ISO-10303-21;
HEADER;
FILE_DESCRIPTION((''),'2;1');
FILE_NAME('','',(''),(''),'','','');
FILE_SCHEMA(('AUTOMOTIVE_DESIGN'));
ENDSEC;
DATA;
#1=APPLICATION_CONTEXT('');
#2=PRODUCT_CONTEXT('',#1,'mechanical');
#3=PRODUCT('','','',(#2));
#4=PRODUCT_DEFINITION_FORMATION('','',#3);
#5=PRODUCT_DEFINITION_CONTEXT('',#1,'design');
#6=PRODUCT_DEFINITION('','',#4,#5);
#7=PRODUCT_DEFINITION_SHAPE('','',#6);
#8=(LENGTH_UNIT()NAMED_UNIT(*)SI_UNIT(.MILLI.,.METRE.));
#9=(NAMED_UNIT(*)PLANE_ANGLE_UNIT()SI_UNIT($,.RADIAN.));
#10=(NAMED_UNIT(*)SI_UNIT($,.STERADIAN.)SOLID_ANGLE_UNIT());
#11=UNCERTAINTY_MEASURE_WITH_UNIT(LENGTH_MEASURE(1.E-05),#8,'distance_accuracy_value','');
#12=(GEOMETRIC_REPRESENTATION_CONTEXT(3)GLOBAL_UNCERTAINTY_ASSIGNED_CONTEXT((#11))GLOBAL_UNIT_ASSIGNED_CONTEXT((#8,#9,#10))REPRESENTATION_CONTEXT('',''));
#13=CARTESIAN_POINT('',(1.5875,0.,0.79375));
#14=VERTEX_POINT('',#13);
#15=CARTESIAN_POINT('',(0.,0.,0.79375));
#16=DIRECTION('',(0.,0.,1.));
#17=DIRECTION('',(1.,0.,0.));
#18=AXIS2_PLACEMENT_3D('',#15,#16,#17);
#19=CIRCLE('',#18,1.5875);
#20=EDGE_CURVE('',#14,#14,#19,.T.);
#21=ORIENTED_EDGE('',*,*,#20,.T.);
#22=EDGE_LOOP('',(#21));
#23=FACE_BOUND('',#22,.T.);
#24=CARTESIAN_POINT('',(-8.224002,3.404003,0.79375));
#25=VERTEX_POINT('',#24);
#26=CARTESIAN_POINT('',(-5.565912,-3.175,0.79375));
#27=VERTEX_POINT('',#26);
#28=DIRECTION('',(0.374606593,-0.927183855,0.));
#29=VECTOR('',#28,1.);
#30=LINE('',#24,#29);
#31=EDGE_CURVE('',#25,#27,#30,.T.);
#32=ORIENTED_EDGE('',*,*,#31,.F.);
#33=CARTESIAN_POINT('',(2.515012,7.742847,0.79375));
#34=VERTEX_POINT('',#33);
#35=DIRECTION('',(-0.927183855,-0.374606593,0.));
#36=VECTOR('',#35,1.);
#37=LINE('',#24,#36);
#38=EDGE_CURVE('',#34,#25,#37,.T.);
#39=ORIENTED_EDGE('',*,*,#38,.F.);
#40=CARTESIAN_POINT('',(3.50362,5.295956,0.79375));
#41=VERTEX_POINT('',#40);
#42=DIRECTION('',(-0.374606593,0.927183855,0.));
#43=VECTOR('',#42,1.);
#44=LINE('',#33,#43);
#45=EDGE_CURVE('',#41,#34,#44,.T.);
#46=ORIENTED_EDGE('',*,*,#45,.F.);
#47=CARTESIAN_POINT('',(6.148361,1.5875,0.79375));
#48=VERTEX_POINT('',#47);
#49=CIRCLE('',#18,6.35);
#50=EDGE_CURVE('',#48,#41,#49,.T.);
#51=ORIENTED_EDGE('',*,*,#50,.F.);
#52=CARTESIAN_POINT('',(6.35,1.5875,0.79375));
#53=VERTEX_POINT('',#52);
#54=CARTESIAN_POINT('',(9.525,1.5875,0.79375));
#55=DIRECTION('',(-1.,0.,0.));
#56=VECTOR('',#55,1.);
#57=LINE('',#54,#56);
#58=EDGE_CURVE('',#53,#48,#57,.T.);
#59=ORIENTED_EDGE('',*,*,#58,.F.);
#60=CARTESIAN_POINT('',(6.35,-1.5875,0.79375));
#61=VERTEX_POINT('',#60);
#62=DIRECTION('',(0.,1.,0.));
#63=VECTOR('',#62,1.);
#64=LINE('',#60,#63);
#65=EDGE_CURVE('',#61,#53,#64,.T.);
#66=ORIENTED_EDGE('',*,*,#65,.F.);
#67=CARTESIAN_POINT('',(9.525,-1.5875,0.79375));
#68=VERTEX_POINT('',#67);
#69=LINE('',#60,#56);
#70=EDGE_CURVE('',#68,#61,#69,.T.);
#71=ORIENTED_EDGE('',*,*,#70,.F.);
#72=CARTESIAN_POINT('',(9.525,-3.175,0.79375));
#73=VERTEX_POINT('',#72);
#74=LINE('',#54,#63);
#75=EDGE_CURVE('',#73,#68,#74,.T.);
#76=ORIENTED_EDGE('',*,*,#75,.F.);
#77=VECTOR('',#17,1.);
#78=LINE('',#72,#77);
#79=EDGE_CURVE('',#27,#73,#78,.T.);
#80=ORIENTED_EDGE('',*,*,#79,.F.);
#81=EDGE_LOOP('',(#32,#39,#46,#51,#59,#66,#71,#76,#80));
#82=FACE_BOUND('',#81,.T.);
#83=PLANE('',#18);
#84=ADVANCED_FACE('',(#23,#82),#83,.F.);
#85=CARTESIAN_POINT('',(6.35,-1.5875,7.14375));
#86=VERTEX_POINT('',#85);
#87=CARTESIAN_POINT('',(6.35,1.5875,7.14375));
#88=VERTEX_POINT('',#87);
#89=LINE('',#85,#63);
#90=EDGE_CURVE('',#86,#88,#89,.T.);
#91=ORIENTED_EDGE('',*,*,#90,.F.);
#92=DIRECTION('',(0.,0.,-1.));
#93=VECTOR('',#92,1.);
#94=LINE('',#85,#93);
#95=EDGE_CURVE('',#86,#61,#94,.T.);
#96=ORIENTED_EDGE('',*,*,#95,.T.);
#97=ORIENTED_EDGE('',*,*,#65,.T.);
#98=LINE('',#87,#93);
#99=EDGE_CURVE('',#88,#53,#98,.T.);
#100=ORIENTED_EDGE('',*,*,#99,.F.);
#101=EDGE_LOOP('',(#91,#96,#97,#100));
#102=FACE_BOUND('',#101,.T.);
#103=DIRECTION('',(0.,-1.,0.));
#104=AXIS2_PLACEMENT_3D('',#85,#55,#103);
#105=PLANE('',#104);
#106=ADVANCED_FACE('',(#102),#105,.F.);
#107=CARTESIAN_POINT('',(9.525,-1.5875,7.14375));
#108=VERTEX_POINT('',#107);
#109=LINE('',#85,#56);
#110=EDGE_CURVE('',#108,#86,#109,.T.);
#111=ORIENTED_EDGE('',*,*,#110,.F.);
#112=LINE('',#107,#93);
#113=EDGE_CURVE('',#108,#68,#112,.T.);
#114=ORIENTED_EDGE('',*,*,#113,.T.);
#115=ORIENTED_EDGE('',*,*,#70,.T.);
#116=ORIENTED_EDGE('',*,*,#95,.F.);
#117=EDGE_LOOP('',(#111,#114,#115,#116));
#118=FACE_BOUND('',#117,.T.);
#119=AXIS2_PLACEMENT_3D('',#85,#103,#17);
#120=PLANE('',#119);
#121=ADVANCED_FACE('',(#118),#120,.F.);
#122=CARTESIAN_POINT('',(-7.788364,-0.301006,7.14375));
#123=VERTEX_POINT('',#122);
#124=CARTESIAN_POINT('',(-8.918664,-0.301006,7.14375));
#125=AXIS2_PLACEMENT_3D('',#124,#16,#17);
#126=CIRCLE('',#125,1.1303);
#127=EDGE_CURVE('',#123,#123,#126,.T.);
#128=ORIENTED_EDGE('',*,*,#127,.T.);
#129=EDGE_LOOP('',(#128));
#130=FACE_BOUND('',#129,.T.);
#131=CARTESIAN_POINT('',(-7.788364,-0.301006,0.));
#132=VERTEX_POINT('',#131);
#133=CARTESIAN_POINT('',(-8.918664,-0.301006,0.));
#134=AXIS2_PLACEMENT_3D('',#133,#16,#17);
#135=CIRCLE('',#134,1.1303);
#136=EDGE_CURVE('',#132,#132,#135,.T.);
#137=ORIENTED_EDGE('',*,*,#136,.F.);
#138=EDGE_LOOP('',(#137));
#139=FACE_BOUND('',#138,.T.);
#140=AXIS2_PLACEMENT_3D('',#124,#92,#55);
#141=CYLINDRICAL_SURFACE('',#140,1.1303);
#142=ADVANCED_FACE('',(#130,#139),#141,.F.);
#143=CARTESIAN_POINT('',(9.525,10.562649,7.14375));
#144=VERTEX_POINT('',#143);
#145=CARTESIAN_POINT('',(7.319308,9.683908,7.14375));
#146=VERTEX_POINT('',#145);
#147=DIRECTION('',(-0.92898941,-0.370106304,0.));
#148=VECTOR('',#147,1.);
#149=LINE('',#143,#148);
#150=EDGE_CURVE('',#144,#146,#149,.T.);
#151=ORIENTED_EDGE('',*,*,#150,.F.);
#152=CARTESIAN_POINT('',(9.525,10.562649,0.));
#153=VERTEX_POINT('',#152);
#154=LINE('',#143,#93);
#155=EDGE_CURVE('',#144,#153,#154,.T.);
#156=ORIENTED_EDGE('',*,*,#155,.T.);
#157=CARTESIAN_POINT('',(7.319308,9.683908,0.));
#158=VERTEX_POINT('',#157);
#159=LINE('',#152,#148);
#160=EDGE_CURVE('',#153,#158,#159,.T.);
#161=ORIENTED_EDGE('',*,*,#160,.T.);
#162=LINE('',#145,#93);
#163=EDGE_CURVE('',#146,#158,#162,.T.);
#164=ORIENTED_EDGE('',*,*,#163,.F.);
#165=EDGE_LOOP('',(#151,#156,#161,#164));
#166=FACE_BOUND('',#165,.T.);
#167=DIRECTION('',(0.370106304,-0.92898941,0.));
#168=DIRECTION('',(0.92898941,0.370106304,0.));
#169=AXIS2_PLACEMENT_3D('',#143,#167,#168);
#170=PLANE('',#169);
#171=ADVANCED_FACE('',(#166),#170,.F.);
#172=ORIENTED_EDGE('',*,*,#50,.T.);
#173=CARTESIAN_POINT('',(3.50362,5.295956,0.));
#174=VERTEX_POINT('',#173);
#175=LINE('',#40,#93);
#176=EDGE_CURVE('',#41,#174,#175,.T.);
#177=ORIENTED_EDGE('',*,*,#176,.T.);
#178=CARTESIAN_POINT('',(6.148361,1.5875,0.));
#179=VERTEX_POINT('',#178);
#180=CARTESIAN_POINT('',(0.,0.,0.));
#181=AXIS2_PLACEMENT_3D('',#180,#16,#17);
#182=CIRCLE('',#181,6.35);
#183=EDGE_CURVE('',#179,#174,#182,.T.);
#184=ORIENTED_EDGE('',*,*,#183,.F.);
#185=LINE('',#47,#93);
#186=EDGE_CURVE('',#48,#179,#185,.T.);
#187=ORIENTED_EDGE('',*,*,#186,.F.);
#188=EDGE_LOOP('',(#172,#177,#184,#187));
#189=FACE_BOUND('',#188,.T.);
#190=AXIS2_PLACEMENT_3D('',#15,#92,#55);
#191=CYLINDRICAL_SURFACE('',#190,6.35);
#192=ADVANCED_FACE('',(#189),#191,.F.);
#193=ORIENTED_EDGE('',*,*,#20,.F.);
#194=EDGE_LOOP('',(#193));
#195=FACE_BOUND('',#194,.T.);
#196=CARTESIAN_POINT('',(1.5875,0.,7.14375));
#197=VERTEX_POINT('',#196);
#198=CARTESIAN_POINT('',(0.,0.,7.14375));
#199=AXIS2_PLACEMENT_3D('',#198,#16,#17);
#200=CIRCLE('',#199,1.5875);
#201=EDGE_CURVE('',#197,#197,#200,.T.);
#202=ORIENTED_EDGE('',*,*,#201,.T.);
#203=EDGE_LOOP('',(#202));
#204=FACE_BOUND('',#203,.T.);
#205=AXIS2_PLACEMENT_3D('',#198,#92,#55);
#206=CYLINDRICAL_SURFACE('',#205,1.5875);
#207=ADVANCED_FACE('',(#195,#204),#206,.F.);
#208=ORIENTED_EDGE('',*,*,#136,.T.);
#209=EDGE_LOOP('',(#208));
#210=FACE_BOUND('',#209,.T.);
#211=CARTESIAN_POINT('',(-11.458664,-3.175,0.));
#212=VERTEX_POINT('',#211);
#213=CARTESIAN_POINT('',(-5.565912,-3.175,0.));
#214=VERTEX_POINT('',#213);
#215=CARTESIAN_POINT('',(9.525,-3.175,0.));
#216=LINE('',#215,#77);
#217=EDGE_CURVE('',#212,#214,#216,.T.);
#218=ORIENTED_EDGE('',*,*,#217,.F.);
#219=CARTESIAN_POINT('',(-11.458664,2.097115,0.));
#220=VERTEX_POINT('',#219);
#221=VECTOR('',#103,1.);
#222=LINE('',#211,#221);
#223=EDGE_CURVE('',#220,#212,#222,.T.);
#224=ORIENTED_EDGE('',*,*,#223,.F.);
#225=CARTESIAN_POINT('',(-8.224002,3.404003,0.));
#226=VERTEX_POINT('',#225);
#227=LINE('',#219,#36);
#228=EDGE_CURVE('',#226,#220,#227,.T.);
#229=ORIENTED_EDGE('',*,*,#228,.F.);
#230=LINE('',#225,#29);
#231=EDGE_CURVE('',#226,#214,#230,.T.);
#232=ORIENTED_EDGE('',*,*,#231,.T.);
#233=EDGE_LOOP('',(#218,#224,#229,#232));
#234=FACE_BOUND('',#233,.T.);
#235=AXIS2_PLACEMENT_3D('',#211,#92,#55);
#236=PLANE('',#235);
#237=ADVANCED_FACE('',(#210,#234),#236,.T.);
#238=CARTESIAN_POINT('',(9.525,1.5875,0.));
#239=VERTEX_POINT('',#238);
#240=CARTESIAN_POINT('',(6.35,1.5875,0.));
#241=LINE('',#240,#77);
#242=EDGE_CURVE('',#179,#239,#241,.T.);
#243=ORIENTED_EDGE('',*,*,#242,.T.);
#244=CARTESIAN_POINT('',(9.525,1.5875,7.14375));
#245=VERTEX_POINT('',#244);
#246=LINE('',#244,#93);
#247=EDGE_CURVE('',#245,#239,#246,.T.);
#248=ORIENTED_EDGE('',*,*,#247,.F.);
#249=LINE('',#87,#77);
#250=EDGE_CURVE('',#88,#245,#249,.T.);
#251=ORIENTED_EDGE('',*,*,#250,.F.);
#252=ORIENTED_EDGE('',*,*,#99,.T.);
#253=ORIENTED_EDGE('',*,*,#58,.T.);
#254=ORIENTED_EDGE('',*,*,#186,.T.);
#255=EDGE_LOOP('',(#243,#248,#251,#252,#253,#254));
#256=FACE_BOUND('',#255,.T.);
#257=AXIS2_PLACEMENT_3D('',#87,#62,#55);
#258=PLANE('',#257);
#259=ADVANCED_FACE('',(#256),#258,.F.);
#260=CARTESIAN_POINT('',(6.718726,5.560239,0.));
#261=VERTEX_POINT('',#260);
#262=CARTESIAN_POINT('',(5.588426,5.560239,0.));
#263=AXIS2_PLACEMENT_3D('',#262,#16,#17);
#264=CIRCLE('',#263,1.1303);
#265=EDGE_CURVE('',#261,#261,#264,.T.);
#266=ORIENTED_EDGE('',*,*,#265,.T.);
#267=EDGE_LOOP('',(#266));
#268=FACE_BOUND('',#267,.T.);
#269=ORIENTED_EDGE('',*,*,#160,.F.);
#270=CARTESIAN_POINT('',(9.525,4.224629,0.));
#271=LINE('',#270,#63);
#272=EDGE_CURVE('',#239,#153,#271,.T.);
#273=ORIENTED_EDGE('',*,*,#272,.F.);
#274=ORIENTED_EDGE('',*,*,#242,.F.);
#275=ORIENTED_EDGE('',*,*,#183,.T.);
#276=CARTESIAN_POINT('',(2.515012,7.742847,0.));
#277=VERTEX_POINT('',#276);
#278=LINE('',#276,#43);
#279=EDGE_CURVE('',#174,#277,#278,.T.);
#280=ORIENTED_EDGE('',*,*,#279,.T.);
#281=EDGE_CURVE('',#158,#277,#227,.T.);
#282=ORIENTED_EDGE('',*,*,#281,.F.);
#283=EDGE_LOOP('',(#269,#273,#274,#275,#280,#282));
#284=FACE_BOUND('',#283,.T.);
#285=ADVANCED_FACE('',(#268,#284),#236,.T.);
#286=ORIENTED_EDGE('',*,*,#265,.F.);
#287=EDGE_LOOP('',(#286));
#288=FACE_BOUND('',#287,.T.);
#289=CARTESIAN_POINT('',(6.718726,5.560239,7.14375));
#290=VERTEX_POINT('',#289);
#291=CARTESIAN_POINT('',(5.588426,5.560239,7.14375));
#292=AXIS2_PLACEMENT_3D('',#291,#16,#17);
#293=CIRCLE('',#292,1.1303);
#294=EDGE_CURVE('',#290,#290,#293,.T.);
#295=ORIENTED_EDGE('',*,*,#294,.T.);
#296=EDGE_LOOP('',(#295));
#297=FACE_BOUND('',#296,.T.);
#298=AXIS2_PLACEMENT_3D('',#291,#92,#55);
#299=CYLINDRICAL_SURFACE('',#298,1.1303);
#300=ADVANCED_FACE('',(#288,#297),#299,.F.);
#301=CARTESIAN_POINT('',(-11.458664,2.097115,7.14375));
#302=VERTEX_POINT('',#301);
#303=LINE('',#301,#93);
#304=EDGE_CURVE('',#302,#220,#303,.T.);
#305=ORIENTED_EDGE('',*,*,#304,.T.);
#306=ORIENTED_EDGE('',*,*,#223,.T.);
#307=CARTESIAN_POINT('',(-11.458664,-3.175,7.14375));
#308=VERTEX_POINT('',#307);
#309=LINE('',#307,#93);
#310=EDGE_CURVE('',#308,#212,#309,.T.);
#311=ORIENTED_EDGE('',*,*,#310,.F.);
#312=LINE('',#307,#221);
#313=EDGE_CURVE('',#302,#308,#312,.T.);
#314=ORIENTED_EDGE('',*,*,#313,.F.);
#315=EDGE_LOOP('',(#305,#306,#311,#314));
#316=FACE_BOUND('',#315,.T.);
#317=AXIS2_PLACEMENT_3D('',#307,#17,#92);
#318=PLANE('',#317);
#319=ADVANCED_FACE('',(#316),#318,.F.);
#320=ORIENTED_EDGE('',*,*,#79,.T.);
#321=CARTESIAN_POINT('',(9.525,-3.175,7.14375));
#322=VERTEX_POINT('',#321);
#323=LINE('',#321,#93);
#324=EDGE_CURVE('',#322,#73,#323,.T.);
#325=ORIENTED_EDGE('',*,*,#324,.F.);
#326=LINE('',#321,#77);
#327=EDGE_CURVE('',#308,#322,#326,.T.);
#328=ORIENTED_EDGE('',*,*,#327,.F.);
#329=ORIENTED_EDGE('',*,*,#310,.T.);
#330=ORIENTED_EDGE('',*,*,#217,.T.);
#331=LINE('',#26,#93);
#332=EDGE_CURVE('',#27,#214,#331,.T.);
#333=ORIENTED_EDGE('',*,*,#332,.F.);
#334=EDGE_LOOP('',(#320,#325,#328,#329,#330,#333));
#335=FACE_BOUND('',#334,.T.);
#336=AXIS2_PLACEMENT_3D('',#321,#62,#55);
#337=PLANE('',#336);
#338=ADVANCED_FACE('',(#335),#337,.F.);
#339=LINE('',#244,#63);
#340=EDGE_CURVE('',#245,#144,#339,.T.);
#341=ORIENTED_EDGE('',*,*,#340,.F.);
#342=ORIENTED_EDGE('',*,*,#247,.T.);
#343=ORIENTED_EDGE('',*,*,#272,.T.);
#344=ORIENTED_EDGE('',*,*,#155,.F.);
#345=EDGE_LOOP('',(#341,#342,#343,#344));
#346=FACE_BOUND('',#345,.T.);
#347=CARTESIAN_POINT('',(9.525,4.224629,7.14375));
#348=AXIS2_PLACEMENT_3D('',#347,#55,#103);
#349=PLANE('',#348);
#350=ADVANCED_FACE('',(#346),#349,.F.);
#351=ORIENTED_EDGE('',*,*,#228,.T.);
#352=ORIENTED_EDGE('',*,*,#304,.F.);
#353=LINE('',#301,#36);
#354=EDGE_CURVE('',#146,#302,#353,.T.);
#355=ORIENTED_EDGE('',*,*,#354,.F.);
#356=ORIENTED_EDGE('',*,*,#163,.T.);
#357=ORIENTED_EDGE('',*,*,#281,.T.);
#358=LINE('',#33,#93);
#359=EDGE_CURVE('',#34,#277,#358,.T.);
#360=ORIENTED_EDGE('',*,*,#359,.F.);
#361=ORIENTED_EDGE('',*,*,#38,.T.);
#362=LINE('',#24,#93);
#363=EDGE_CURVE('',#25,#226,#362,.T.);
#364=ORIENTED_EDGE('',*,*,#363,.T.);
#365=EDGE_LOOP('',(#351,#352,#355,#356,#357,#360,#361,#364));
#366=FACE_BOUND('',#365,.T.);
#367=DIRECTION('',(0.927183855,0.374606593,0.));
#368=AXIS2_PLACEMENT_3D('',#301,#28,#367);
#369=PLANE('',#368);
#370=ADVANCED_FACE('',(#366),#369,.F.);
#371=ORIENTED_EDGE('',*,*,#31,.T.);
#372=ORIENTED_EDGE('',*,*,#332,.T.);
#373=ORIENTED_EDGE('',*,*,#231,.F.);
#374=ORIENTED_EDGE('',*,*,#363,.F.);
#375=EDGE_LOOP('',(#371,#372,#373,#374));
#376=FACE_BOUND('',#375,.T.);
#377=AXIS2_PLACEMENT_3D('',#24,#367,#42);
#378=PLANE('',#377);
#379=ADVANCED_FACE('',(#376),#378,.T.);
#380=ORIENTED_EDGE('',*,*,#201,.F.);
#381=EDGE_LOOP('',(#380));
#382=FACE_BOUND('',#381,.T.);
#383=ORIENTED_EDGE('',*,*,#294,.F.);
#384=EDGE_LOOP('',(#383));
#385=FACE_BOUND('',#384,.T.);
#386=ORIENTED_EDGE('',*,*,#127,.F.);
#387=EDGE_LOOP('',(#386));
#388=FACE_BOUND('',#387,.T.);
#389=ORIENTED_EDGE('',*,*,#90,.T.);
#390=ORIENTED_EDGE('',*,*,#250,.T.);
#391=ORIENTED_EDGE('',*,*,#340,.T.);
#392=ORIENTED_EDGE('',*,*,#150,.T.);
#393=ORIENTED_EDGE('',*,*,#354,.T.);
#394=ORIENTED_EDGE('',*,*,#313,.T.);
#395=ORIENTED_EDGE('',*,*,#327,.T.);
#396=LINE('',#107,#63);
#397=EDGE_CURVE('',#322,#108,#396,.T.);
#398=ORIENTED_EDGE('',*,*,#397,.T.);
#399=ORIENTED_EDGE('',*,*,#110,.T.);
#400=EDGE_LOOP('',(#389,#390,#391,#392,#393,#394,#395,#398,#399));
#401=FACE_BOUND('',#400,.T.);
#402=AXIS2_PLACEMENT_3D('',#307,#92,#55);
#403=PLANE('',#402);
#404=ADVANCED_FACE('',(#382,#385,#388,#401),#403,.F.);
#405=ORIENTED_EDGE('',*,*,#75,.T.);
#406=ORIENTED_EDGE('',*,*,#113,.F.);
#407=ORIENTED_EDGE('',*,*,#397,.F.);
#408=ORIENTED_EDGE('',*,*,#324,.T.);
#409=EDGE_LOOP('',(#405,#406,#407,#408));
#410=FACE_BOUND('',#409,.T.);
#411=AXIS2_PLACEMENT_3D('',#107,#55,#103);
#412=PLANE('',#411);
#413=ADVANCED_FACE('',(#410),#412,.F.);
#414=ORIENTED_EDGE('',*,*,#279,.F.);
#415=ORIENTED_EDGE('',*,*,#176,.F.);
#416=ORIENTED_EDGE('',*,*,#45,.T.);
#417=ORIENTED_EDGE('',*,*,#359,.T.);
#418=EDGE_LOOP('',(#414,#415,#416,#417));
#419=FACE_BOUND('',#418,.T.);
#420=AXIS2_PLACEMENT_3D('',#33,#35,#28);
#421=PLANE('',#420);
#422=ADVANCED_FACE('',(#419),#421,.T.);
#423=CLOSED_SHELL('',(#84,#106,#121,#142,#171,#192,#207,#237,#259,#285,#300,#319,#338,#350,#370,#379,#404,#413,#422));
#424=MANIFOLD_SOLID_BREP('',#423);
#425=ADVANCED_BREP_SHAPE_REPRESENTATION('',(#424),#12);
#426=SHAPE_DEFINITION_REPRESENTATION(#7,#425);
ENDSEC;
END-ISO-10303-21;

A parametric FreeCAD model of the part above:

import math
import FreeCAD as App
import Part
import Sketcher
from FreeCAD import Vector
Q = App.Units.Quantity


def add_polygon(sketch, points):
    """Adds a closed chain of lines whose ends are joined by coincident constraints."""
    first, n = sketch.GeometryCount, len(points)
    for a, b in zip(points, points[1:] + points[:1]):
        sketch.addGeometry(Part.LineSegment(App.Vector(*a, 0), App.Vector(*b, 0)), False)
    for i in range(n):
        sketch.addConstraint(Sketcher.Constraint("Coincident", first + i, 2, first + (i + 1) % n, 1))

doc = App.newDocument("Part")
body = doc.addObject("PartDesign::Body", "Body")

sketch1 = doc.addObject("Sketcher::SketchObject", "Sketch")
body.addObject(sketch1)
sketch1.AttachmentSupport = (doc.XY_Plane, [""])
sketch1.MapMode = "FlatFace"
add_polygon(sketch1, [(6.3, 1.6), (9.5, 1.6), (9.5, 10.6), (7.3, 9.7), (-11.5, 2.1), (-11.5, -3.2), (9.5, -3.2), (9.5, -1.6), (6.3, -1.6)])
sketch1.addGeometry(Part.Circle(Vector(-8.9, -0.3, 0), Vector(0, 0, 1), 1.1), False)
sketch1.addGeometry(Part.Circle(Vector(0, 0, 0), Vector(0, 0, 1), 1.6), False)
sketch1.addGeometry(Part.Circle(Vector(5.6, 5.6, 0), Vector(0, 0, 1), 1.1), False)
sketch1.addConstraint(Sketcher.Constraint("Horizontal", 0))
sketch1.addConstraint(Sketcher.Constraint("Vertical", 1))
sketch1.addConstraint(Sketcher.Constraint("Vertical", 4))
sketch1.addConstraint(Sketcher.Constraint("Horizontal", 5))
sketch1.addConstraint(Sketcher.Constraint("Vertical", 6))
sketch1.addConstraint(Sketcher.Constraint("Horizontal", 7))
sketch1.addConstraint(Sketcher.Constraint("Vertical", 8))
sketch1.addConstraint(Sketcher.Constraint("Coincident", 10, 3, -1, 1))
sketch1.addConstraint(Sketcher.Constraint("Equal", 9, 11))
sketch1.addConstraint(Sketcher.Constraint("Symmetric", 0, 2, 6, 2, -1))
sketch1.addConstraint(Sketcher.Constraint("Equal", 7, 8))
sketch1.addConstraint(Sketcher.Constraint("Diameter", 9, Q("0.089 in")))
sketch1.addConstraint(Sketcher.Constraint("Diameter", 10, Q("0.125 in")))
sketch1.addConstraint(Sketcher.Constraint("Angle", 3, Q("-158 deg")))
sketch1.addConstraint(Sketcher.Constraint("DistanceX", 3, 2, 9, 3, Q("0.1 in")))
sketch1.addConstraint(Sketcher.Constraint("DistanceX", 0, 1, 0, 2, Q("0.125 in")))
sketch1.addConstraint(Sketcher.Constraint("DistanceY", 6, 1, 6, 2, Q("0.0625 in")))
sketch1.addConstraint(Sketcher.Constraint("DistanceX", -1, 1, 7, 2, Q("0.25 in")))
sketch1.addConstraint(Sketcher.Constraint("DistanceY", 1, 1, 1, 2, Q("8.975149 mm")))
sketch1.addConstraint(Sketcher.Constraint("DistanceX", 5, 1, 5, 2, Q("20.983664 mm")))
sketch1.addConstraint(Sketcher.Constraint("DistanceY", 4, 2, 4, 1, Q("5.272115 mm")))
sketch1.addConstraint(Sketcher.Constraint("DistanceY", -1, 1, 11, 3, Q("5.560239 mm")))
sketch1.addConstraint(Sketcher.Constraint("DistanceY", -1, 1, 2, 2, Q("9.683908 mm")))
sketch1.addConstraint(Sketcher.Constraint("DistanceX", 9, 3, 11, 3, Q("14.507089 mm")))
sketch1.addConstraint(Sketcher.Constraint("DistanceY", 9, 3, 3, 2, Q("2.398121 mm")))
pad1 = doc.addObject("PartDesign::Pad", "Pad")
body.addObject(pad1)
pad1.Profile = sketch1
pad1.Length = Q("0.28125 in")

sketch2 = doc.addObject("Sketcher::SketchObject", "Sketch001")
body.addObject(sketch2)
sketch2.AttachmentSupport = (doc.XY_Plane, [""])
sketch2.MapMode = "FlatFace"
sketch2.addGeometry(Part.LineSegment(Vector(9.5, 1.6, 0), Vector(6.1, 1.6, 0)), False)
sketch2.addGeometry(Part.ArcOfCircle(Part.Circle(Vector(0, 0, 0), Vector(0, 0, 1), 6.4), math.radians(14), math.radians(57)), False)
sketch2.addGeometry(Part.LineSegment(Vector(3.5, 5.3, 0), Vector(2.5, 7.7, 0)), False)
sketch2.addGeometry(Part.LineSegment(Vector(2.5, 7.7, 0), Vector(-8.2, 3.4, 0)), False)
sketch2.addGeometry(Part.LineSegment(Vector(-8.2, 3.4, 0), Vector(-5.6, -3.2, 0)), False)
sketch2.addGeometry(Part.LineSegment(Vector(-5.6, -3.2, 0), Vector(9.5, -3.2, 0)), False)
sketch2.addGeometry(Part.LineSegment(Vector(9.5, -3.2, 0), Vector(9.5, 1.6, 0)), False)
sketch2.addGeometry(Part.Circle(Vector(0, 0, 0), Vector(0, 0, 1), 1.6), False)
sketch2.addConstraint(Sketcher.Constraint("Coincident", 0, 2, 1, 1))
sketch2.addConstraint(Sketcher.Constraint("Coincident", 1, 2, 2, 1))
sketch2.addConstraint(Sketcher.Constraint("Coincident", 2, 2, 3, 1))
sketch2.addConstraint(Sketcher.Constraint("Coincident", 3, 2, 4, 1))
sketch2.addConstraint(Sketcher.Constraint("Coincident", 4, 2, 5, 1))
sketch2.addConstraint(Sketcher.Constraint("Coincident", 5, 2, 6, 1))
sketch2.addConstraint(Sketcher.Constraint("Coincident", 6, 2, 0, 1))
sketch2.addConstraint(Sketcher.Constraint("Horizontal", 0))
sketch2.addConstraint(Sketcher.Constraint("Horizontal", 5))
sketch2.addConstraint(Sketcher.Constraint("Vertical", 6))
sketch2.addConstraint(Sketcher.Constraint("Coincident", 1, 3, -1, 1))
sketch2.addConstraint(Sketcher.Constraint("Coincident", 7, 3, -1, 1))
sketch2.addConstraint(Sketcher.Constraint("Perpendicular", 2, 3))
sketch2.addConstraint(Sketcher.Constraint("Perpendicular", 3, 4))
sketch2.addConstraint(Sketcher.Constraint("Radius", 1, Q("0.25 in")))
sketch2.addConstraint(Sketcher.Constraint("Diameter", 7, Q("0.125 in")))
sketch2.addConstraint(Sketcher.Constraint("Angle", 2, Q("112 deg")))
sketch2.addConstraint(Sketcher.Constraint("DistanceY", 6, 1, 6, 2, Q("0.1875 in")))
sketch2.addConstraint(Sketcher.Constraint("Distance", 3, Q("0.456 in")))
sketch2.addConstraint(Sketcher.Constraint("DistanceY", -1, 1, 0, 2, Q("0.0625 in")))
sketch2.addConstraint(Sketcher.Constraint("DistanceX", -1, 1, 5, 2, Q("0.375 in")))
sketch2.addConstraint(Sketcher.Constraint("Distance", 2, Q("0.1038999 in")))
sketch2.addConstraint(Sketcher.Constraint("DistanceX", 5, 1, 5, 2, Q("15.090912 mm")))
pocket1 = doc.addObject("PartDesign::Pocket", "Pocket")
body.addObject(pocket1)
pocket1.Profile = sketch2
pocket1.Length = Q("0.03125 in")
pocket1.Reversed = True

doc.recompute()
